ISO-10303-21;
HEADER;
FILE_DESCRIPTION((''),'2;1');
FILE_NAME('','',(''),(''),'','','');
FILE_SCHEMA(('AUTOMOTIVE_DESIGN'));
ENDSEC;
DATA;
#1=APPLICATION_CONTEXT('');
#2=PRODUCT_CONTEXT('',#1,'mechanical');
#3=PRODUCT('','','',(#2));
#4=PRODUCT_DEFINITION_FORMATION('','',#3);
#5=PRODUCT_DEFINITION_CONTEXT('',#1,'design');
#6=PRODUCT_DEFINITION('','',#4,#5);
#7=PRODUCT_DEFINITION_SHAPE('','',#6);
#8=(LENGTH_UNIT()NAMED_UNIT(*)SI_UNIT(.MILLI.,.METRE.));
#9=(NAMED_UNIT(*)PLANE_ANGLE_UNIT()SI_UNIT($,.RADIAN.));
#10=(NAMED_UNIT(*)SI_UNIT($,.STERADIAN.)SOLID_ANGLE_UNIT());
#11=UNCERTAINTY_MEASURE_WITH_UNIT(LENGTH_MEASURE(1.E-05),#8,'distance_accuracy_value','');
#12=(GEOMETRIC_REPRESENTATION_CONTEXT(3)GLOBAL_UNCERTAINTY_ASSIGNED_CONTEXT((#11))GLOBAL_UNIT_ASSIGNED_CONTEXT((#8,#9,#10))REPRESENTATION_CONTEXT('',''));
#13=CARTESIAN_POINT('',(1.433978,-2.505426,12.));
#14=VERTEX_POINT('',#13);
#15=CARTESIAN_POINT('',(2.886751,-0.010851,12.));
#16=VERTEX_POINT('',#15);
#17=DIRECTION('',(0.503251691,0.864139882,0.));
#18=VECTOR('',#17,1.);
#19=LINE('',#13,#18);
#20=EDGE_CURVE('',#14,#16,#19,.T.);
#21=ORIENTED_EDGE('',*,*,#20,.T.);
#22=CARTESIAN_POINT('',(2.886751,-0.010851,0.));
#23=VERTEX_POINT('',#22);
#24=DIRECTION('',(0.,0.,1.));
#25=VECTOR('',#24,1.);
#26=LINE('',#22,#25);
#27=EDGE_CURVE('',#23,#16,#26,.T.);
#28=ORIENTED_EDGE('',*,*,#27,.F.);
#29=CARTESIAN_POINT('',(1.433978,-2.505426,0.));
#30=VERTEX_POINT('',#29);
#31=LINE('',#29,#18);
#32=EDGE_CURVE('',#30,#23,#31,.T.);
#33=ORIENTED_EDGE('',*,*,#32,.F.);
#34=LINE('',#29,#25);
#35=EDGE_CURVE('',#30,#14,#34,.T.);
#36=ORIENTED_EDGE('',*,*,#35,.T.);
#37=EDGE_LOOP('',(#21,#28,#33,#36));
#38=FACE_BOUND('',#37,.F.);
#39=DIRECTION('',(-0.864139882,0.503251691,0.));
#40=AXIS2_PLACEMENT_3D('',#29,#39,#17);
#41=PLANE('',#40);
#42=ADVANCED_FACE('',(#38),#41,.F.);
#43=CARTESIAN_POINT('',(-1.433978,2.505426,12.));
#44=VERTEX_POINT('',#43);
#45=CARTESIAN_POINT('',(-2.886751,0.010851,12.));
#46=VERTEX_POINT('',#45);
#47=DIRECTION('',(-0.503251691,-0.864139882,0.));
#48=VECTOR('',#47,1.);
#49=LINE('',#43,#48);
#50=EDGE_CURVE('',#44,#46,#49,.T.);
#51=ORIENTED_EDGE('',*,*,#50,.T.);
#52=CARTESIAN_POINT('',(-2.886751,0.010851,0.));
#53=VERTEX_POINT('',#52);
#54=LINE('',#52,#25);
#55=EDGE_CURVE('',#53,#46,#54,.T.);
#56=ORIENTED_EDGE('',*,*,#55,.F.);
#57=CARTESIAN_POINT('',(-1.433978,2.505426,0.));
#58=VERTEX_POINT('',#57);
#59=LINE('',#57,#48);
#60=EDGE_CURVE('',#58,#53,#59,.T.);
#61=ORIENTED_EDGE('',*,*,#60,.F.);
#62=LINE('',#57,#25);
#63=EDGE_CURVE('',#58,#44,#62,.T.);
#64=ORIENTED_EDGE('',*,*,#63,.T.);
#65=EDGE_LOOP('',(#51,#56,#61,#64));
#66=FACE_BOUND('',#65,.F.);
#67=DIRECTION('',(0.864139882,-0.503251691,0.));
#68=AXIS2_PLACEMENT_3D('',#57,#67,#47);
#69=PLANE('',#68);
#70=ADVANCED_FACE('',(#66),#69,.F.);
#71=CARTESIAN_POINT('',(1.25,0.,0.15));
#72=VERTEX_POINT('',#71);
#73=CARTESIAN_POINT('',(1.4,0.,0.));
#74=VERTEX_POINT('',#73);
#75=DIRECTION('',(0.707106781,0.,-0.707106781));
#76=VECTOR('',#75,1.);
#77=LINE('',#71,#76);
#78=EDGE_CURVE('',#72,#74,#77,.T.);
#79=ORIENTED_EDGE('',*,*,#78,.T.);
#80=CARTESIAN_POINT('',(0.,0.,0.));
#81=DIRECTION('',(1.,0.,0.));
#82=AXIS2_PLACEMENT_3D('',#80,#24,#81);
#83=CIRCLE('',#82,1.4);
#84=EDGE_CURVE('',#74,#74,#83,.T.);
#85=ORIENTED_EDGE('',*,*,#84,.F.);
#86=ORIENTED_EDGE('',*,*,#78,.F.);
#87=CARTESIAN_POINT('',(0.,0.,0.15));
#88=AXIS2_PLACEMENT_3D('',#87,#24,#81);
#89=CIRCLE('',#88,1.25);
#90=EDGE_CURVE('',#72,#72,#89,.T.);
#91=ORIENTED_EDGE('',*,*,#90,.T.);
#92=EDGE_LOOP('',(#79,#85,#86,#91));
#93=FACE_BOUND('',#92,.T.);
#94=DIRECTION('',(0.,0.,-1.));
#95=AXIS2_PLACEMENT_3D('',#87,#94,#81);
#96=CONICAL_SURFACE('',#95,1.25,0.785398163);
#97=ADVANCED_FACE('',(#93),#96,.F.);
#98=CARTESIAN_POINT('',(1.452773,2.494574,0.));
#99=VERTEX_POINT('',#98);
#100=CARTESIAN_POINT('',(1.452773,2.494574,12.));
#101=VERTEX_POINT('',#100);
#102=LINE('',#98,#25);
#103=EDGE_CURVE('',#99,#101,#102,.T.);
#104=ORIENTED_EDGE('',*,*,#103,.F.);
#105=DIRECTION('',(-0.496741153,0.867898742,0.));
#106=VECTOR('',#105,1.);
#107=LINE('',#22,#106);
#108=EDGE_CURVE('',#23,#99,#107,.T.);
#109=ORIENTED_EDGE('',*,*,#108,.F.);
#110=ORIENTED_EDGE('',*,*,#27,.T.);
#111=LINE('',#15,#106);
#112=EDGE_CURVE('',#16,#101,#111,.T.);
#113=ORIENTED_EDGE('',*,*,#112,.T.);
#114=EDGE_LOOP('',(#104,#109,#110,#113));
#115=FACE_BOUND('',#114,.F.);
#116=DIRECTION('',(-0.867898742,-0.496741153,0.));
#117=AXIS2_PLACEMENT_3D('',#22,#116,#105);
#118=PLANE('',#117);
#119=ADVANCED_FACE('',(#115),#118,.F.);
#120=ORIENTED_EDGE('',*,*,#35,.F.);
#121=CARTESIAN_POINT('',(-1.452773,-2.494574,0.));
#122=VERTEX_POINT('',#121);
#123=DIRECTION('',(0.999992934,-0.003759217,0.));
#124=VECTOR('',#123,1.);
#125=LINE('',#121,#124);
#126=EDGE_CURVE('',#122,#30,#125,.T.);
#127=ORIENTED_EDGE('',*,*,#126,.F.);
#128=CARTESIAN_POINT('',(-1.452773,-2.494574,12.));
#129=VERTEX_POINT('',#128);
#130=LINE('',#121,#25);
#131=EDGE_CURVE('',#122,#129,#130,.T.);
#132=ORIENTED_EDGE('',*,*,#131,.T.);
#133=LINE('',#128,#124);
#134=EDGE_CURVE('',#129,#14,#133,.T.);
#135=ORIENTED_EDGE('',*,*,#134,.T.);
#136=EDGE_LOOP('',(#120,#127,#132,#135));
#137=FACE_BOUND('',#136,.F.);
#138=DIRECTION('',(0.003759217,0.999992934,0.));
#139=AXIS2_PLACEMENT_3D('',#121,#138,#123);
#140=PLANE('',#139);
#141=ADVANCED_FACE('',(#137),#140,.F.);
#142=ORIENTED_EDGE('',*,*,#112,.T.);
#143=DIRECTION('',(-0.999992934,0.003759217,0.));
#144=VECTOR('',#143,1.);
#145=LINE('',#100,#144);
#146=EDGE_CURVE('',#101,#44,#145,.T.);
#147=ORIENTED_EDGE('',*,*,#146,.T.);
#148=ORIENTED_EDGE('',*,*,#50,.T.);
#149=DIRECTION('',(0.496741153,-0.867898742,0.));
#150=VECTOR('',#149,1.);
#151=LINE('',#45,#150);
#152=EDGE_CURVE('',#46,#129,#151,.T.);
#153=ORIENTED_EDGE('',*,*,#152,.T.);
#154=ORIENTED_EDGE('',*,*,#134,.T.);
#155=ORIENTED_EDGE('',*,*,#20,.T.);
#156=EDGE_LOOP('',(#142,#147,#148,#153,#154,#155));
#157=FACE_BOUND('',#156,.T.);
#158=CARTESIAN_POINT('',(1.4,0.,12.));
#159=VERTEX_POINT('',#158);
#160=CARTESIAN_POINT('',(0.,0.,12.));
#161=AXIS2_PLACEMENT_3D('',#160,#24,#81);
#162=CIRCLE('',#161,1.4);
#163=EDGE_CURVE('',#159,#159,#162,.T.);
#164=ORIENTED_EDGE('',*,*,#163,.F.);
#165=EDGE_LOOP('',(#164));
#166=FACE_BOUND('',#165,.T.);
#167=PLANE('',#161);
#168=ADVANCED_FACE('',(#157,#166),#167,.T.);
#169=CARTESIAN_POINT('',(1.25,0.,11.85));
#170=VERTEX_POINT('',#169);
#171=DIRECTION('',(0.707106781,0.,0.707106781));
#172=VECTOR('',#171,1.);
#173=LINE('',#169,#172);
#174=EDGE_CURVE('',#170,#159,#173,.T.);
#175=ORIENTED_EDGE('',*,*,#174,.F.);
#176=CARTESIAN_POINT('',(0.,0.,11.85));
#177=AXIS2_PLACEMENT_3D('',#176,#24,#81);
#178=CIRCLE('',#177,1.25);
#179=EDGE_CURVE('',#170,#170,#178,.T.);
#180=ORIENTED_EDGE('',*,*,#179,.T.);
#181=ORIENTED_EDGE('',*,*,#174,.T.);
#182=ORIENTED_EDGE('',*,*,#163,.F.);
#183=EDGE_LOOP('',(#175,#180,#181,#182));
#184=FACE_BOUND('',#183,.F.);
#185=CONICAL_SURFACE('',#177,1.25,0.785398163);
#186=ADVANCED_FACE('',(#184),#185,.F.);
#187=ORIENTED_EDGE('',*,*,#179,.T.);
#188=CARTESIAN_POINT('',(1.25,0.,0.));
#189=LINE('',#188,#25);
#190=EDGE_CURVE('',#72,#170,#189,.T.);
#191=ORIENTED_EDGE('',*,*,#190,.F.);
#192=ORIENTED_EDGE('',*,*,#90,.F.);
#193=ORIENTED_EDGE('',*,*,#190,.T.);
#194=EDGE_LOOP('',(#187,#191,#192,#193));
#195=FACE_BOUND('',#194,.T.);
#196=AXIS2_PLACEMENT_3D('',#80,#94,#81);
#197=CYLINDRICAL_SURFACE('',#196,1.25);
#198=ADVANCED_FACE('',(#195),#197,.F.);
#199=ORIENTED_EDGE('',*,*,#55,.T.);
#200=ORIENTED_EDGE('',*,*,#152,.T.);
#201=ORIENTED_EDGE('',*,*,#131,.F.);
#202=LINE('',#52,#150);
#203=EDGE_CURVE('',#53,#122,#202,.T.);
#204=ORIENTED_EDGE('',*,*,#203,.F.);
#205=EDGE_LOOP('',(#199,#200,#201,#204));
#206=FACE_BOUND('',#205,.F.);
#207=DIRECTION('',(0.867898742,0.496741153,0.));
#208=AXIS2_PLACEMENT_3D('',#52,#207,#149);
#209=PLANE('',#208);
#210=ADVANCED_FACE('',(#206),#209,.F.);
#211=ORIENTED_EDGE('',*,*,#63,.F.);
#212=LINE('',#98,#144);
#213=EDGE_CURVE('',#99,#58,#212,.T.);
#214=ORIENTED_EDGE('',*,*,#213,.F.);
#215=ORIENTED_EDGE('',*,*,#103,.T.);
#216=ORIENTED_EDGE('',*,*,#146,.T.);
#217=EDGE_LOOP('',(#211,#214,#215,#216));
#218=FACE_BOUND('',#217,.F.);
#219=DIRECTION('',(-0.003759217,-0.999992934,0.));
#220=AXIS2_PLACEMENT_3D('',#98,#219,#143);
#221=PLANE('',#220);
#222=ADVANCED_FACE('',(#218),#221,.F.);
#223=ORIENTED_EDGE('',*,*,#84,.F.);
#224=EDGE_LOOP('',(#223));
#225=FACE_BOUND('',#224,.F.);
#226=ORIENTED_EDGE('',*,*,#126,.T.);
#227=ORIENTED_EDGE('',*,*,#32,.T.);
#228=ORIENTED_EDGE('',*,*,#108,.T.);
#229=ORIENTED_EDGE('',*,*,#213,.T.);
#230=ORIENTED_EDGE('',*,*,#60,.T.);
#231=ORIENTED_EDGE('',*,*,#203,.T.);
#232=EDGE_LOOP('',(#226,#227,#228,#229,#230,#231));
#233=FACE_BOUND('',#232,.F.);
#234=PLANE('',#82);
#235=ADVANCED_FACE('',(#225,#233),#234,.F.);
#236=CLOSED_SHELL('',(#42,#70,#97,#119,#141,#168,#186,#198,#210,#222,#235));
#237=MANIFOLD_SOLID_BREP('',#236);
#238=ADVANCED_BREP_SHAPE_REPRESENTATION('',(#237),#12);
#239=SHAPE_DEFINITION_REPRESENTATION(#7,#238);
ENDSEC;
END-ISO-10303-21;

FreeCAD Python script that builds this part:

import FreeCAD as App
import Part
import Sketcher
from FreeCAD import Vector


def edges_at(feature, points):
    """Names of the edges that pass closest to the given points."""
    edges = feature.Shape.Edges
    near = lambda p: min(range(len(edges)), key=lambda i: edges[i].distToShape(Part.Vertex(*p))[0])
    return sorted({f"Edge{near(p) + 1}" for p in points})

doc = App.newDocument("Part")
body = doc.addObject("PartDesign::Body", "Body")

# Sketch on XY plane
sketch1 = body.newObject("Sketcher::SketchObject", "Sketch")
sketch1.AttachmentSupport = (doc.getObject("XY_Plane"), [""])
sketch1.MapMode = "FlatFace"
sketch1.addGeometry([
    Part.LineSegment(Vector(1.433978, -2.505426, 0), Vector(2.886751, -0.010851, 0)),  # 0
    Part.LineSegment(Vector(2.886751, -0.010851, 0), Vector(1.452773, 2.494574, 0)),  # 1
    Part.LineSegment(Vector(1.452773, 2.494574, 0), Vector(-1.433978, 2.505426, 0)),  # 2
    Part.LineSegment(Vector(-1.433978, 2.505426, 0), Vector(-2.886751, 0.010851, 0)),  # 3
    Part.LineSegment(Vector(-2.886751, 0.010851, 0), Vector(-1.452773, -2.494574, 0)),  # 4
    Part.LineSegment(Vector(-1.452773, -2.494574, 0), Vector(1.433978, -2.505426, 0)),  # 5
    Part.Circle(Vector(0, 0, 0), Vector(0, 0, 1), 1.25),  # 6
], False)
sketch1.addConstraint([
    Sketcher.Constraint("Coincident", 0, 2, 1, 1),
    Sketcher.Constraint("Coincident", 1, 2, 2, 1),
    Sketcher.Constraint("Coincident", 2, 2, 3, 1),
    Sketcher.Constraint("Coincident", 3, 2, 4, 1),
    Sketcher.Constraint("Coincident", 4, 2, 5, 1),
    Sketcher.Constraint("Coincident", 5, 2, 0, 1),
    Sketcher.Constraint("Coincident", 6, 3, -1, 1),
    Sketcher.Constraint("Symmetric", 0, 2, 3, 2, -1, 1),
    Sketcher.Constraint("Symmetric", 1, 2, 4, 2, -1, 1),
    Sketcher.Constraint("Symmetric", 2, 2, 5, 2, -1, 1),
    Sketcher.Constraint("Equal", 0, 1),
    Sketcher.Constraint("Equal", 1, 2),
    Sketcher.Constraint("Diameter", 6, 2.5),
    Sketcher.Constraint("DistanceY", 4, 2, 2, 2, 5.0),
    Sketcher.Constraint("DistanceX", 3, 2, 0, 2, 5.773502),
    Sketcher.Constraint("DistanceY", 0, 2, 3, 2, 0.021702),
    Sketcher.Constraint("DistanceY", 1, 2, 2, 2, 0.010852),
])
pad1 = body.newObject("PartDesign::Pad", "Pad")
pad1.Profile = sketch1
pad1.Length = 12

# Sketch on XY plane
sketch2 = body.newObject("Sketcher::SketchObject", "Sketch001")
sketch2.AttachmentSupport = (doc.getObject("XY_Plane"), [""])
sketch2.MapMode = "FlatFace"
sketch2.addGeometry([
    Part.LineSegment(Vector(1.433978, -2.505426, 0), Vector(2.886751, -0.010851, 0)),  # 0
    Part.LineSegment(Vector(2.886751, -0.010851, 0), Vector(1.452773, 2.494574, 0)),  # 1
    Part.LineSegment(Vector(1.452773, 2.494574, 0), Vector(-1.433978, 2.505426, 0)),  # 2
    Part.LineSegment(Vector(-1.433978, 2.505426, 0), Vector(-2.886751, 0.010851, 0)),  # 3
    Part.LineSegment(Vector(-2.886751, 0.010851, 0), Vector(-1.452773, -2.494574, 0)),  # 4
    Part.LineSegment(Vector(-1.452773, -2.494574, 0), Vector(1.433978, -2.505426, 0)),  # 5
    Part.Circle(Vector(0, 0, 0), Vector(0, 0, 1), 1.25),  # 6
], False)
sketch2.addConstraint([
    Sketcher.Constraint("Coincident", 0, 2, 1, 1),
    Sketcher.Constraint("Coincident", 1, 2, 2, 1),
    Sketcher.Constraint("Coincident", 2, 2, 3, 1),
    Sketcher.Constraint("Coincident", 3, 2, 4, 1),
    Sketcher.Constraint("Coincident", 4, 2, 5, 1),
    Sketcher.Constraint("Coincident", 5, 2, 0, 1),
    Sketcher.Constraint("Coincident", 6, 3, -1, 1),
    Sketcher.Constraint("Symmetric", 0, 2, 3, 2, -1, 1),
    Sketcher.Constraint("Symmetric", 1, 2, 4, 2, -1, 1),
    Sketcher.Constraint("Symmetric", 2, 2, 5, 2, -1, 1),
    Sketcher.Constraint("Equal", 0, 1),
    Sketcher.Constraint("Equal", 1, 2),
    Sketcher.Constraint("Diameter", 6, 2.5),
    Sketcher.Constraint("DistanceY", 4, 2, 2, 2, 5.0),
    Sketcher.Constraint("DistanceX", 3, 2, 0, 2, 5.773502),
    Sketcher.Constraint("DistanceY", 0, 2, 3, 2, 0.021702),
    Sketcher.Constraint("DistanceY", 1, 2, 2, 2, 0.010852),
])
pocket1 = body.newObject("PartDesign::Pocket", "Pocket")
pocket1.Profile = sketch2
pocket1.Length = 12
doc.recompute()

chamfer = body.newObject("PartDesign::Chamfer", "Chamfer")
chamfer.Base = (pocket1, edges_at(pocket1, [(1.25, 0, 6), (-1.25, 0, 0), (-1.25, 0, 12)]))
chamfer.Size = 0.15

doc.recompute()
